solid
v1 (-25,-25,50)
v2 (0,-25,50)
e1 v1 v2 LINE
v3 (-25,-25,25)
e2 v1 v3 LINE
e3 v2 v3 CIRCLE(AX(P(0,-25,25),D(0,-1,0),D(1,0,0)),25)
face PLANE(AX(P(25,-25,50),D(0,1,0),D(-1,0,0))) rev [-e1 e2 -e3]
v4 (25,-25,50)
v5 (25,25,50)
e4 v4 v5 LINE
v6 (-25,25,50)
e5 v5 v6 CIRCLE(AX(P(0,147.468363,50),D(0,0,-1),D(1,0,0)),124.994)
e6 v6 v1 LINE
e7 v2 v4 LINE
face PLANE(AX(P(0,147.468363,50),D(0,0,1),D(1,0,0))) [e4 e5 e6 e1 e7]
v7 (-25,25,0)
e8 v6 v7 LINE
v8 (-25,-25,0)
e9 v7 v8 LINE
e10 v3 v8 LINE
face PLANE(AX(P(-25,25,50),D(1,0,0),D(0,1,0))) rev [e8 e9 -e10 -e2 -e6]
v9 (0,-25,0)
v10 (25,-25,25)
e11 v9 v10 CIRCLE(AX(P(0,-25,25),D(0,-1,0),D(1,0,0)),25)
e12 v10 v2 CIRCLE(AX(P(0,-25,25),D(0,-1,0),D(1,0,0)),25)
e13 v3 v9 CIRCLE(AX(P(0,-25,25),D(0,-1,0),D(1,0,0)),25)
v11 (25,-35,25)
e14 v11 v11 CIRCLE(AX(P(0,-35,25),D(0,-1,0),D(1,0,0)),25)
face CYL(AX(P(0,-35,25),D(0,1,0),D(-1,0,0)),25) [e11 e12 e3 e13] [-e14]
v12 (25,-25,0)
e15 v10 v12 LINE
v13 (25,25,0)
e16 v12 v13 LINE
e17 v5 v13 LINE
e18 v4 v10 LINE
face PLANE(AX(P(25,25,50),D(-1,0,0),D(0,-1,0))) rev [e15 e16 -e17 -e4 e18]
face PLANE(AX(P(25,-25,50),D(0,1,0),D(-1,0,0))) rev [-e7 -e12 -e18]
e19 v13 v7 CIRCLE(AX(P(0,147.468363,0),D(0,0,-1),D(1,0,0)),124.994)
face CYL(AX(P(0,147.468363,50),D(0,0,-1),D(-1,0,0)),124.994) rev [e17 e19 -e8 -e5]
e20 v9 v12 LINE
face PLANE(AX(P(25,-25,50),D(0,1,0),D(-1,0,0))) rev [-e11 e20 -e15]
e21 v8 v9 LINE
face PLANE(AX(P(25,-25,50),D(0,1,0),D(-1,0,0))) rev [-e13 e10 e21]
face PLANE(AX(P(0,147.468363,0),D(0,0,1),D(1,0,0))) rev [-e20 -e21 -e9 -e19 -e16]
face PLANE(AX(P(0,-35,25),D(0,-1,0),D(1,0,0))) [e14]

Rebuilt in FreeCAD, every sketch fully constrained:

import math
import FreeCAD as App
import Part
import Sketcher
from FreeCAD import Vector
Q = App.Units.Quantity

doc = App.newDocument("Part")
body = doc.addObject("PartDesign::Body", "Body")

# Sketch on XY plane
sketch1 = body.newObject("Sketcher::SketchObject", "Sketch")
sketch1.AttachmentSupport = (doc.getObject("XY_Plane"), [""])
sketch1.MapMode = "FlatFace"
sketch1.addGeometry(Part.LineSegment(Vector(25, -25, 0), Vector(25, 25, 0)), False)
sketch1.addGeometry(Part.ArcOfCircle(Part.Circle(Vector(0, 147, 0), Vector(0, 0, 1), 125), math.radians(-102), math.radians(-78)), False)
sketch1.addGeometry(Part.LineSegment(Vector(-25, 25, 0), Vector(-25, -25, 0)), False)
sketch1.addGeometry(Part.LineSegment(Vector(-25, -25, 0), Vector(25, -25, 0)), False)
sketch1.addConstraint(Sketcher.Constraint("Coincident", 0, 2, 1, 2))
sketch1.addConstraint(Sketcher.Constraint("Coincident", 1, 1, 2, 1))
sketch1.addConstraint(Sketcher.Constraint("Coincident", 2, 2, 3, 1))
sketch1.addConstraint(Sketcher.Constraint("Coincident", 3, 2, 0, 1))
sketch1.addConstraint(Sketcher.Constraint("Vertical", 0))
sketch1.addConstraint(Sketcher.Constraint("Vertical", 2))
sketch1.addConstraint(Sketcher.Constraint("Horizontal", 3))
sketch1.addConstraint(Sketcher.Constraint("Symmetric", 0, 2, 2, 2, -1, 1))
sketch1.addConstraint(Sketcher.Constraint("PointOnObject", 1, 3, -2))
sketch1.addConstraint(Sketcher.Constraint("Equal", 3, 0))
sketch1.addConstraint(Sketcher.Constraint("DistanceX", 3, 1, 3, 2, Q("50 mm")))
sketch1.addConstraint(Sketcher.Constraint("Radius", 1, Q("124.994 mm")))
pad1 = body.newObject("PartDesign::Pad", "Pad")
pad1.Profile = sketch1
pad1.Length = 50

# Sketch on XZ plane
sketch2 = body.newObject("Sketcher::SketchObject", "Sketch001")
sketch2.AttachmentSupport = (doc.getObject("XZ_Plane"), [""])
sketch2.MapMode = "FlatFace"
sketch2.AttachmentOffset = App.Placement(Vector(0, 0, 25), App.Rotation())
sketch2.addGeometry(Part.Circle(Vector(0, 25, 0), Vector(0, 0, 1), 25), False)
sketch2.addConstraint(Sketcher.Constraint("PointOnObject", 0, 3, -2))
sketch2.addConstraint(Sketcher.Constraint("Diameter", 0, Q("50 mm")))
sketch2.addConstraint(Sketcher.Constraint("DistanceY", -1, 1, 0, 3, Q("25 mm")))
pad2 = body.newObject("PartDesign::Pad", "Pad001")
pad2.Profile = sketch2
pad2.Length = 10

doc.recompute()
